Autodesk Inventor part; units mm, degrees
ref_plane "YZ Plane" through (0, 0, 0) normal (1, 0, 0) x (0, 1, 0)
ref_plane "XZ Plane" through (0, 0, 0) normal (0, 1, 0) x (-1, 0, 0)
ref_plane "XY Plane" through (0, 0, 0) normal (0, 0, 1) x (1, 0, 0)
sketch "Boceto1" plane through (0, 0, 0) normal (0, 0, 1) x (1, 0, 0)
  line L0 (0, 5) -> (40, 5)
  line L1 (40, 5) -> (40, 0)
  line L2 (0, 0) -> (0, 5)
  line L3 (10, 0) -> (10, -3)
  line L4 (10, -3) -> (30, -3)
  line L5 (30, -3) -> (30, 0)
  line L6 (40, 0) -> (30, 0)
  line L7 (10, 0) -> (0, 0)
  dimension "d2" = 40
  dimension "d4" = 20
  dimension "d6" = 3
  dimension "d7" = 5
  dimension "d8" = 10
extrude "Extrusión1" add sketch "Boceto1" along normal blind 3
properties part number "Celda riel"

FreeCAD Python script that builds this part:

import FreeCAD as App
import Part
import Sketcher
from FreeCAD import Vector

doc = App.newDocument("Part")
params = doc.addObject("Spreadsheet::Sheet", "Params")
for row, (alias, value) in enumerate([
    ("sketch1_width", "40 mm"),
    ("sketch1_width2", "10 mm"),
    ("sketch1_height", "5 mm"),
    ("sketch1_height2", "3 mm"),
    ("pad1_length", "3 mm"),
], start=1):
    params.set(f"A{row}", alias)
    params.set(f"B{row}", "=" + value)
    params.setAlias(f"B{row}", alias)

body = doc.addObject("PartDesign::Body", "Body")

# Sketch on XY plane
sketch1 = doc.addObject("Sketcher::SketchObject", "Sketch")
body.addObject(sketch1)
sketch1.AttachmentSupport = (doc.XY_Plane, [""])
sketch1.MapMode = "FlatFace"
sketch1.addGeometry([
    Part.LineSegment(Vector(40, 5, 0), Vector(0, 5, 0)),  # 0
    Part.LineSegment(Vector(0, 5, 0), Vector(0, 0, 0)),  # 1
    Part.LineSegment(Vector(0, 0, 0), Vector(10, 0, 0)),  # 2
    Part.LineSegment(Vector(10, 0, 0), Vector(10, -3, 0)),  # 3
    Part.LineSegment(Vector(10, -3, 0), Vector(30, -3, 0)),  # 4
    Part.LineSegment(Vector(30, -3, 0), Vector(30, 0, 0)),  # 5
    Part.LineSegment(Vector(30, 0, 0), Vector(40, 0, 0)),  # 6
    Part.LineSegment(Vector(40, 0, 0), Vector(40, 5, 0)),  # 7
], False)
sketch1.addConstraint([
    Sketcher.Constraint("Coincident", 0, 2, 1, 1),
    Sketcher.Constraint("Coincident", 1, 2, 2, 1),
    Sketcher.Constraint("Coincident", 2, 2, 3, 1),
    Sketcher.Constraint("Coincident", 3, 2, 4, 1),
    Sketcher.Constraint("Coincident", 4, 2, 5, 1),
    Sketcher.Constraint("Coincident", 5, 2, 6, 1),
    Sketcher.Constraint("Coincident", 6, 2, 7, 1),
    Sketcher.Constraint("Coincident", 7, 2, 0, 1),
    Sketcher.Constraint("Horizontal", 0),
    Sketcher.Constraint("Vertical", 1),
    Sketcher.Constraint("Horizontal", 2),
    Sketcher.Constraint("Vertical", 3),
    Sketcher.Constraint("Horizontal", 4),
    Sketcher.Constraint("Vertical", 5),
    Sketcher.Constraint("Horizontal", 6),
    Sketcher.Constraint("Vertical", 7),
    Sketcher.Constraint("Coincident", 1, 2, -1, 1),
    Sketcher.Constraint("PointOnObject", 5, 2, -1),
    Sketcher.Constraint("Equal", 2, 6),
    Sketcher.Constraint("DistanceX", 0, 2, 0, 1, 40.0),
    Sketcher.Constraint("DistanceX", 2, 1, 2, 2, 10.0),
    Sketcher.Constraint("DistanceY", 1, 2, 1, 1, 5.0),
    Sketcher.Constraint("DistanceY", 3, 2, 3, 1, 3.0),
])
sketch1.setExpression("Constraints[19]", "Params.sketch1_width")
sketch1.setExpression("Constraints[20]", "Params.sketch1_width2")
sketch1.setExpression("Constraints[21]", "Params.sketch1_height")
sketch1.setExpression("Constraints[22]", "Params.sketch1_height2")
pad1 = doc.addObject("PartDesign::Pad", "Pad")
body.addObject(pad1)
pad1.Profile = sketch1
pad1.setExpression("Length", "Params.pad1_length")

doc.recompute()
